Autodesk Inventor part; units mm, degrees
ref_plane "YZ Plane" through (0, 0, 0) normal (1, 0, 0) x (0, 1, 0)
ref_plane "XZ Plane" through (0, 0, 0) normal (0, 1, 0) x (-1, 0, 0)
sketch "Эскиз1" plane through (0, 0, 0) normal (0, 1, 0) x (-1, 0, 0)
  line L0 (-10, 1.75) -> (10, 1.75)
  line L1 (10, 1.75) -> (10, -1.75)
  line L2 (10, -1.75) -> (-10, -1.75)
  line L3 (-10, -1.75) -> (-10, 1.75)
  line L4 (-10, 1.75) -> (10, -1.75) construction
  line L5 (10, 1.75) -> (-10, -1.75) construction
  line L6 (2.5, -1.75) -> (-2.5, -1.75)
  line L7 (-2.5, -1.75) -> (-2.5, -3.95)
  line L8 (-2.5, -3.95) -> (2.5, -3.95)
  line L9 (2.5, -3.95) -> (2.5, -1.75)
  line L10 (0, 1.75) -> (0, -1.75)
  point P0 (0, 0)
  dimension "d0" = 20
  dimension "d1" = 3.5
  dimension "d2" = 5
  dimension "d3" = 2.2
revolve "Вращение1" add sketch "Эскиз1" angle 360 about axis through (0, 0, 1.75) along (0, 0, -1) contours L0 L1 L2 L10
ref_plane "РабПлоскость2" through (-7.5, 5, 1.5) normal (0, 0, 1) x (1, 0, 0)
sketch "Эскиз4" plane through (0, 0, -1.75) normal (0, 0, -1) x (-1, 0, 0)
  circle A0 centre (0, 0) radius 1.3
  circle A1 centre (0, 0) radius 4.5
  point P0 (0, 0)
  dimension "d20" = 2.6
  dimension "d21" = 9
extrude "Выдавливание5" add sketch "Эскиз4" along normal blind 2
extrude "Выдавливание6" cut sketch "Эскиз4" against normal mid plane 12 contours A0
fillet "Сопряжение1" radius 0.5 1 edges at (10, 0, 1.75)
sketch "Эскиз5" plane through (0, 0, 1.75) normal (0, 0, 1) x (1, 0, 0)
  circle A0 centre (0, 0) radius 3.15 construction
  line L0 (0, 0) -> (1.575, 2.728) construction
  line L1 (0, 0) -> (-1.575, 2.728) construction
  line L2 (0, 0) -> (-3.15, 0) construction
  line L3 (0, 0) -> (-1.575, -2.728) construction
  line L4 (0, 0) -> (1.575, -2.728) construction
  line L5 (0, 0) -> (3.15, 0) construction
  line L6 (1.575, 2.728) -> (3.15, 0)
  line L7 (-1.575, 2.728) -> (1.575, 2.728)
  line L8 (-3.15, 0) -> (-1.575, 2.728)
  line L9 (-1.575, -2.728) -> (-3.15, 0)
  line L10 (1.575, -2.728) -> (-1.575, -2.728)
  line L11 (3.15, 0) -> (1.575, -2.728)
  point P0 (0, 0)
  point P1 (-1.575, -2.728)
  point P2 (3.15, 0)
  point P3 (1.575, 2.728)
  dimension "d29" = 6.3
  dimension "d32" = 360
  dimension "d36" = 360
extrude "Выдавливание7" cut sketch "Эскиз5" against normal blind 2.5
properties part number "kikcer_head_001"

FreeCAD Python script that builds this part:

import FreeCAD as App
import Part
import Sketcher
Q = App.Units.Quantity


def edges_at(feature, points):
    """Names of the edges that pass closest to the given points."""
    edges = feature.Shape.Edges
    near = lambda p: min(range(len(edges)), key=lambda i: edges[i].distToShape(Part.Vertex(*p))[0])
    return sorted({f"Edge{near(p) + 1}" for p in points})

doc = App.newDocument("Part")
params = doc.addObject("Spreadsheet::Sheet", "Params")
for row, (alias, value) in enumerate([
    ("sketch1_height", "3.5 mm"),
    ("sketch1_width", "10 mm"),
    ("revolution_angle", "360 deg"),
    ("sketch2_diameter", "9 mm"),
    ("sketch2_diameter2", "2.6 mm"),
    ("pad1_length", "2 mm"),
    ("sketch3_diameter", "2.6 mm"),
    ("pocket1_length", "12 mm"),
    ("fillet_radius", "0.5 mm"),
    ("sketch4_width", "3.15 mm"),
    ("pocket2_length", "2.5 mm"),
], start=1):
    params.set(f"A{row}", alias)
    params.set(f"B{row}", "=" + value)
    params.setAlias(f"B{row}", alias)

body = doc.addObject("PartDesign::Body", "Body")

sketch1 = doc.addObject("Sketcher::SketchObject", "Sketch")
body.addObject(sketch1)
sketch1.AttachmentSupport = (doc.XZ_Plane, [""])
sketch1.MapMode = "FlatFace"
sketch1.addGeometry([
    Part.LineSegment(App.Vector(-10, 1.8, 0), App.Vector(0, 1.8, 0)),
    Part.LineSegment(App.Vector(0, 1.8, 0), App.Vector(0, -1.8, 0)),
    Part.LineSegment(App.Vector(0, -1.8, 0), App.Vector(-10, -1.8, 0)),
    Part.LineSegment(App.Vector(-10, -1.8, 0), App.Vector(-10, 1.8, 0)),
], False)
sketch1.addConstraint([
    Sketcher.Constraint("Coincident", 0, 2, 1, 1),
    Sketcher.Constraint("Coincident", 1, 2, 2, 1),
    Sketcher.Constraint("Coincident", 2, 2, 3, 1),
    Sketcher.Constraint("Coincident", 3, 2, 0, 1),
    Sketcher.Constraint("Horizontal", 0),
    Sketcher.Constraint("Vertical", 1),
    Sketcher.Constraint("Horizontal", 2),
    Sketcher.Constraint("Vertical", 3),
    Sketcher.Constraint("Symmetric", 0, 2, 1, 2, -1, 1),
    Sketcher.Constraint("DistanceY", 1, 2, 1, 1, Q("3.5 mm")),
    Sketcher.Constraint("DistanceX", 0, 1, 0, 2, Q("10 mm")),
])
sketch1.setExpression("Constraints[9]", "Params.sketch1_height")
sketch1.setExpression("Constraints[10]", "Params.sketch1_width")
revolution = doc.addObject("PartDesign::Revolution", "Revolution")
body.addObject(revolution)
revolution.Profile = sketch1
revolution.ReferenceAxis = (sketch1, ["V_Axis"])
revolution.setExpression("Angle", "Params.revolution_angle")

sketch2 = doc.addObject("Sketcher::SketchObject", "Sketch001")
body.addObject(sketch2)
sketch2.AttachmentSupport = (doc.XY_Plane, [""])
sketch2.MapMode = "FlatFace"
sketch2.AttachmentOffset = App.Placement(App.Vector(0, 0, -1.75), App.Rotation())
sketch2.addGeometry([
    Part.Circle(App.Vector(0, 0, 0), App.Vector(0, 0, 1), 4.5),
    Part.Circle(App.Vector(0, 0, 0), App.Vector(0, 0, 1), 1.3),
], False)
sketch2.addConstraint([
    Sketcher.Constraint("Coincident", 0, 3, -1, 1),
    Sketcher.Constraint("Coincident", 1, 3, -1, 1),
    Sketcher.Constraint("Diameter", 0, Q("9 mm")),
    Sketcher.Constraint("Diameter", 1, Q("2.6 mm")),
])
sketch2.setExpression("Constraints[2]", "Params.sketch2_diameter")
sketch2.setExpression("Constraints[3]", "Params.sketch2_diameter2")
pad1 = doc.addObject("PartDesign::Pad", "Pad")
body.addObject(pad1)
pad1.Profile = sketch2
pad1.setExpression("Length", "Params.pad1_length")
pad1.Reversed = True

sketch3 = doc.addObject("Sketcher::SketchObject", "Sketch002")
body.addObject(sketch3)
sketch3.AttachmentSupport = (doc.XY_Plane, [""])
sketch3.MapMode = "FlatFace"
sketch3.AttachmentOffset = App.Placement(App.Vector(0, 0, -1.75), App.Rotation())
sketch3.addGeometry(Part.Circle(App.Vector(0, 0, 0), App.Vector(0, 0, 1), 1.3), False)
sketch3.addConstraint([
    Sketcher.Constraint("Coincident", 0, 3, -1, 1),
    Sketcher.Constraint("Diameter", 0, Q("2.6 mm")),
])
sketch3.setExpression("Constraints[1]", "Params.sketch3_diameter")
pocket1 = doc.addObject("PartDesign::Pocket", "Pocket")
body.addObject(pocket1)
pocket1.Profile = sketch3
pocket1.setExpression("Length", "Params.pocket1_length")
pocket1.Midplane = True
doc.recompute()

fillet = doc.addObject("PartDesign::Fillet", "Fillet")
body.addObject(fillet)
fillet.Base = (pocket1, edges_at(pocket1, [(10, 0, 1.75)]))
fillet.setExpression("Radius", "Params.fillet_radius")

sketch4 = doc.addObject("Sketcher::SketchObject", "Sketch003")
body.addObject(sketch4)
sketch4.AttachmentSupport = (doc.XY_Plane, [""])
sketch4.MapMode = "FlatFace"
sketch4.AttachmentOffset = App.Placement(App.Vector(0, 0, 1.75), App.Rotation())
sketch4.addGeometry([
    Part.LineSegment(App.Vector(3.1, 0, 0), App.Vector(1.6, 2.7, 0)),
    Part.LineSegment(App.Vector(1.6, 2.7, 0), App.Vector(-1.6, 2.7, 0)),
    Part.LineSegment(App.Vector(-1.6, 2.7, 0), App.Vector(-3.1, 0, 0)),
    Part.LineSegment(App.Vector(-3.1, 0, 0), App.Vector(-1.6, -2.7, 0)),
    Part.LineSegment(App.Vector(-1.6, -2.7, 0), App.Vector(1.6, -2.7, 0)),
    Part.LineSegment(App.Vector(1.6, -2.7, 0), App.Vector(3.1, 0, 0)),
], False)
sketch4.addConstraint([
    Sketcher.Constraint("Coincident", 0, 2, 1, 1),
    Sketcher.Constraint("Coincident", 1, 2, 2, 1),
    Sketcher.Constraint("Coincident", 2, 2, 3, 1),
    Sketcher.Constraint("Coincident", 3, 2, 4, 1),
    Sketcher.Constraint("Coincident", 4, 2, 5, 1),
    Sketcher.Constraint("Coincident", 5, 2, 0, 1),
    Sketcher.Constraint("Horizontal", 1),
    Sketcher.Constraint("Horizontal", 4),
    Sketcher.Constraint("Symmetric", 0, 2, 3, 2, -1, 1),
    Sketcher.Constraint("Symmetric", 2, 2, 5, 2, -1, 1),
    Sketcher.Constraint("PointOnObject", 2, 2, -1),
    Sketcher.Constraint("Parallel", 2, 5),
    Sketcher.Constraint("Vertical", 1, 2, 3, 2),
    Sketcher.Constraint("DistanceX", 2, 2, 5, 2, Q("6.3 mm")),
    Sketcher.Constraint("Angle", 0, Q("119.9998 deg")),
    Sketcher.Constraint("DistanceX", 1, 2, 1, 1, Q("3.15 mm")),
])
sketch4.setExpression("Constraints[15]", "Params.sketch4_width")
pocket2 = doc.addObject("PartDesign::Pocket", "Pocket001")
body.addObject(pocket2)
pocket2.Profile = sketch4
pocket2.setExpression("Length", "Params.pocket2_length")

doc.recompute()
